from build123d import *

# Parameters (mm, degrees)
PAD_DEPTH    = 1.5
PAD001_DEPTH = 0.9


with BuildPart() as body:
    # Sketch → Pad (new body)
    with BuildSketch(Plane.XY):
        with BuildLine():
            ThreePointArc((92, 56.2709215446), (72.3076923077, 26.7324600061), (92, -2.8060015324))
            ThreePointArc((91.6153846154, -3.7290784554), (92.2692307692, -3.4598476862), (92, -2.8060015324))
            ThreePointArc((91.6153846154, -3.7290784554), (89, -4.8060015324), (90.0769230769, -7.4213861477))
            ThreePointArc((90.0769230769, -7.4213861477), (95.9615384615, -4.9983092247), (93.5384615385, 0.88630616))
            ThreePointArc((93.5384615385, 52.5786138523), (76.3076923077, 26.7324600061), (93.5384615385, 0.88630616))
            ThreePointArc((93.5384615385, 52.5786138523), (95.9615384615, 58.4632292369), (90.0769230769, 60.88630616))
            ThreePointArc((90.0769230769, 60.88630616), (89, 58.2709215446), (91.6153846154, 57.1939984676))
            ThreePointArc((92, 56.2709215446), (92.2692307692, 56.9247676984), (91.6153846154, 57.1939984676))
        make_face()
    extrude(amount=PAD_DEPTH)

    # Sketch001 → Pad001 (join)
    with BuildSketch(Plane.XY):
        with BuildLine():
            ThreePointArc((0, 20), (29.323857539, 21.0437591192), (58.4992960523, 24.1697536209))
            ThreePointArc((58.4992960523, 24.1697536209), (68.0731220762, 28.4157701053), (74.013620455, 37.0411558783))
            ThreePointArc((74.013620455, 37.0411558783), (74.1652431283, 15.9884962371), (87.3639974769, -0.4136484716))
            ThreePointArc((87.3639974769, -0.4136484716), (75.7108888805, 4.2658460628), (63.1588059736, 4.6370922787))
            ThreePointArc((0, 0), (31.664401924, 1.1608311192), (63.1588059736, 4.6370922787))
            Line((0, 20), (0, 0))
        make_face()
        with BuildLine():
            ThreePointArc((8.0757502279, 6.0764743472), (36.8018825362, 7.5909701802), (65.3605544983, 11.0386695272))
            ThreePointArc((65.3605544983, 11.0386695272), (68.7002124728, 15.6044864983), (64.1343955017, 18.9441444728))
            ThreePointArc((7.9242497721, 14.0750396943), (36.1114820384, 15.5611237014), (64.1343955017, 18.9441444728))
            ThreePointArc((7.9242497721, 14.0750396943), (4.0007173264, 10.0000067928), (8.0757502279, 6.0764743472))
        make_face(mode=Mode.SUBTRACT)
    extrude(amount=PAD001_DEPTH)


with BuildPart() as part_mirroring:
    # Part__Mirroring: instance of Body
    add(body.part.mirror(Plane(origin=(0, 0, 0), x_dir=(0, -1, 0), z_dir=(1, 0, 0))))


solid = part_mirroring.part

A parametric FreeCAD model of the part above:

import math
import FreeCAD as App
import Part
import Sketcher
from FreeCAD import Vector
Q = App.Units.Quantity

doc = App.newDocument("Part")
body = doc.addObject("PartDesign::Body", "Body")

sketch1 = body.newObject("Sketcher::SketchObject", "Sketch")
sketch1.AttachmentSupport = (doc.getObject("XY_Plane"), [""])
sketch1.MapMode = "FlatFace"
sketch1.addGeometry(Part.ArcOfCircle(Part.Circle(Vector(104.3, 26.7, 0), Vector(0, 0, 1), 32), math.radians(113), math.radians(247)), False)
sketch1.addGeometry(Part.ArcOfCircle(Part.Circle(Vector(91.8, -3.3, 0), Vector(0, 0, 1), 0.5), math.radians(-113), math.radians(67)), False)
sketch1.addGeometry(Part.ArcOfCircle(Part.Circle(Vector(90.8, -5.6, 0), Vector(0, 0, 1), 2), math.radians(67), math.radians(247)), False)
sketch1.addGeometry(Part.ArcOfCircle(Part.Circle(Vector(91.8, -3.3, 0), Vector(0, 0, 1), 4.5), math.radians(-113), math.radians(67)), False)
sketch1.addGeometry(Part.ArcOfCircle(Part.Circle(Vector(104.3, 26.7, 0), Vector(0, 0, 1), 28), math.radians(113), math.radians(247)), False)
sketch1.addGeometry(Part.ArcOfCircle(Part.Circle(Vector(91.8, 56.7, 0), Vector(0, 0, 1), 4.5), math.radians(-67), math.radians(113)), False)
sketch1.addGeometry(Part.ArcOfCircle(Part.Circle(Vector(90.8, 59, 0), Vector(0, 0, 1), 2), math.radians(113), math.radians(293)), False)
sketch1.addGeometry(Part.ArcOfCircle(Part.Circle(Vector(91.8, 56.7, 0), Vector(0, 0, 1), 0.5), math.radians(-67), math.radians(113)), False)
sketch1.addConstraint(Sketcher.Constraint("Tangent", 0, 2, 1, 2))
sketch1.addConstraint(Sketcher.Constraint("Tangent", 1, 1, 2, 1))
sketch1.addConstraint(Sketcher.Constraint("Tangent", 2, 2, 3, 1))
sketch1.addConstraint(Sketcher.Constraint("Tangent", 3, 2, 4, 2))
sketch1.addConstraint(Sketcher.Constraint("Tangent", 4, 1, 5, 1))
sketch1.addConstraint(Sketcher.Constraint("Tangent", 5, 2, 6, 1))
sketch1.addConstraint(Sketcher.Constraint("Tangent", 6, 2, 7, 2))
sketch1.addConstraint(Sketcher.Constraint("Tangent", 7, 1, 0, 1))
sketch1.addConstraint(Sketcher.Constraint("Coincident", 3, 3, 1, 3))
sketch1.addConstraint(Sketcher.Constraint("Coincident", 4, 3, 0, 3))
sketch1.addConstraint(Sketcher.Constraint("Coincident", 7, 3, 5, 3))
sketch1.addConstraint(Sketcher.Constraint("Equal", 3, 5))
sketch1.addConstraint(Sketcher.Constraint("Vertical", 3, 3, 5, 3))
sketch1.addConstraint(Sketcher.Constraint("Vertical", 2, 3, 6, 3))
sketch1.addConstraint(Sketcher.Constraint("Radius", 0, Q("32 mm")))
sketch1.addConstraint(Sketcher.Constraint("Radius", 2, Q("2 mm")))
sketch1.addConstraint(Sketcher.Constraint("Radius", 1, Q("0.5 mm")))
sketch1.addConstraint(Sketcher.Constraint("DistanceX", -1, 1, 0, 2, Q("92 mm")))
sketch1.addConstraint(Sketcher.Constraint("DistanceY", 1, 3, 0, 3, Q("30 mm")))
sketch1.addConstraint(Sketcher.Constraint("DistanceY", 0, 2, -1, 1, Q("2.806002 mm")))
sketch1.addConstraint(Sketcher.Constraint("DistanceY", -1, 1, 6, 2, Q("57.193998 mm")))
pad1 = body.newObject("PartDesign::Pad", "Pad")
pad1.Profile = sketch1
pad1.Length = 1.5

sketch2 = body.newObject("Sketcher::SketchObject", "Sketch001")
sketch2.AttachmentSupport = (doc.getObject("XY_Plane"), [""])
sketch2.MapMode = "FlatFace"
sketch2.addGeometry(Part.ArcOfCircle(Part.Circle(Vector(0, 432.4, 0), Vector(0, 0, 1), 412.4), math.radians(-90), math.radians(-81.85)), False)
sketch2.addGeometry(Part.LineSegment(Vector(0, 20, 0), Vector(0, 0, 0)), False)
sketch2.addGeometry(Part.ArcOfCircle(Part.Circle(Vector(0, 432.4, 0), Vector(0, 0, 1), 432.4), math.radians(-90), math.radians(-81.6)), False)
sketch2.addGeometry(Part.ArcOfCircle(Part.Circle(Vector(68.4, -30.8, 0), Vector(0, 0, 1), 35.8), math.radians(58), math.radians(98)), False)
sketch2.addGeometry(Part.ArcOfCircle(Part.Circle(Vector(104.3, 26.7, 0), Vector(0, 0, 1), 32), math.radians(161), math.radians(238)), False)
sketch2.addGeometry(Part.ArcOfCircle(Part.Circle(Vector(55.8, 43.3, 0), Vector(0, 0, 1), 19.3), math.radians(-82), math.radians(-19)), False)
sketch2.addGeometry(Part.ArcOfCircle(Part.Circle(Vector(8, 10.1, 0), Vector(0, 0, 1), 4), math.radians(91), math.radians(271)), False)
sketch2.addGeometry(Part.ArcOfCircle(Part.Circle(Vector(0, 432.4, 0), Vector(0, 0, 1), 418.4), math.radians(-88.91), math.radians(-81.18)), False)
sketch2.addGeometry(Part.ArcOfCircle(Part.Circle(Vector(64.7, 15, 0), Vector(0, 0, 1), 4), math.radians(-81), math.radians(99)), False)
sketch2.addGeometry(Part.ArcOfCircle(Part.Circle(Vector(0, 432.4, 0), Vector(0, 0, 1), 426.4), math.radians(-88.91), math.radians(-81.18)), False)
sketch2.addConstraint(Sketcher.Constraint("Coincident", 0, 1, 1, 1))
sketch2.addConstraint(Sketcher.Constraint("Coincident", 1, 2, 2, 1))
sketch2.addConstraint(Sketcher.Constraint("Tangent", 2, 2, 3, 2))
sketch2.addConstraint(Sketcher.Constraint("Tangent", 3, 1, 4, 2))
sketch2.addConstraint(Sketcher.Constraint("Tangent", 4, 1, 5, 2))
sketch2.addConstraint(Sketcher.Constraint("Tangent", 5, 1, 0, 2))
sketch2.addConstraint(Sketcher.Constraint("Tangent", 6, 1, 7, 1))
sketch2.addConstraint(Sketcher.Constraint("Tangent", 7, 2, 8, 2))
sketch2.addConstraint(Sketcher.Constraint("Tangent", 8, 1, 9, 2))
sketch2.addConstraint(Sketcher.Constraint("Tangent", 9, 1, 6, 2))
sketch2.addConstraint(Sketcher.Constraint("Vertical", 1))
sketch2.addConstraint(Sketcher.Constraint("Coincident", 1, 2, -1, 1))
sketch2.addConstraint(Sketcher.Constraint("Coincident", 2, 3, 0, 3))
sketch2.addConstraint(Sketcher.Constraint("Coincident", 7, 3, 0, 3))
sketch2.addConstraint(Sketcher.Constraint("Coincident", 9, 3, 0, 3))
sketch2.addConstraint(Sketcher.Constraint("PointOnObject", 0, 3, -2))
sketch2.addConstraint(Sketcher.Constraint("Radius", 4, Q("32 mm")))
sketch2.addConstraint(Sketcher.Constraint("Radius", 6, Q("4 mm")))
sketch2.addConstraint(Sketcher.Constraint("DistanceY", 1, 2, 1, 1, Q("20 mm")))
sketch2.addConstraint(Sketcher.Constraint("DistanceX", -1, 1, 6, 3, Q("8 mm")))
sketch2.addConstraint(Sketcher.Constraint("Radius", 0, Q("412.440973 mm")))
sketch2.addConstraint(Sketcher.Constraint("Radius", 3, Q("35.830755 mm")))
sketch2.addConstraint(Sketcher.Constraint("Radius", 5, Q("19.275973 mm")))
sketch2.addConstraint(Sketcher.Constraint("Radius", 7, Q("418.440973 mm")))
sketch2.addConstraint(Sketcher.Constraint("DistanceX", 5, 3, 3, 3, Q("12.6267 mm")))
sketch2.addConstraint(Sketcher.Constraint("DistanceX", 5, 1, 7, 2, Q("5.635099 mm")))
sketch2.addConstraint(Sketcher.Constraint("DistanceY", -1, 1, 4, 3, Q("26.73246 mm")))
pad2 = body.newObject("PartDesign::Pad", "Pad001")
pad2.Profile = sketch2
pad2.Length = 0.9
body2 = doc.addObject("PartDesign::Body", "Body001")
doc.recompute()

mirroring = doc.addObject("Part::Mirroring", "Mirroring")
mirroring.Source = body
mirroring.Base = Vector(0, 0, 0)
mirroring.Normal = Vector(1, 0, 0)
body2.BaseFeature = mirroring
doc.recompute()
body.Visibility = False
mirroring.Visibility = False

doc.recompute()
